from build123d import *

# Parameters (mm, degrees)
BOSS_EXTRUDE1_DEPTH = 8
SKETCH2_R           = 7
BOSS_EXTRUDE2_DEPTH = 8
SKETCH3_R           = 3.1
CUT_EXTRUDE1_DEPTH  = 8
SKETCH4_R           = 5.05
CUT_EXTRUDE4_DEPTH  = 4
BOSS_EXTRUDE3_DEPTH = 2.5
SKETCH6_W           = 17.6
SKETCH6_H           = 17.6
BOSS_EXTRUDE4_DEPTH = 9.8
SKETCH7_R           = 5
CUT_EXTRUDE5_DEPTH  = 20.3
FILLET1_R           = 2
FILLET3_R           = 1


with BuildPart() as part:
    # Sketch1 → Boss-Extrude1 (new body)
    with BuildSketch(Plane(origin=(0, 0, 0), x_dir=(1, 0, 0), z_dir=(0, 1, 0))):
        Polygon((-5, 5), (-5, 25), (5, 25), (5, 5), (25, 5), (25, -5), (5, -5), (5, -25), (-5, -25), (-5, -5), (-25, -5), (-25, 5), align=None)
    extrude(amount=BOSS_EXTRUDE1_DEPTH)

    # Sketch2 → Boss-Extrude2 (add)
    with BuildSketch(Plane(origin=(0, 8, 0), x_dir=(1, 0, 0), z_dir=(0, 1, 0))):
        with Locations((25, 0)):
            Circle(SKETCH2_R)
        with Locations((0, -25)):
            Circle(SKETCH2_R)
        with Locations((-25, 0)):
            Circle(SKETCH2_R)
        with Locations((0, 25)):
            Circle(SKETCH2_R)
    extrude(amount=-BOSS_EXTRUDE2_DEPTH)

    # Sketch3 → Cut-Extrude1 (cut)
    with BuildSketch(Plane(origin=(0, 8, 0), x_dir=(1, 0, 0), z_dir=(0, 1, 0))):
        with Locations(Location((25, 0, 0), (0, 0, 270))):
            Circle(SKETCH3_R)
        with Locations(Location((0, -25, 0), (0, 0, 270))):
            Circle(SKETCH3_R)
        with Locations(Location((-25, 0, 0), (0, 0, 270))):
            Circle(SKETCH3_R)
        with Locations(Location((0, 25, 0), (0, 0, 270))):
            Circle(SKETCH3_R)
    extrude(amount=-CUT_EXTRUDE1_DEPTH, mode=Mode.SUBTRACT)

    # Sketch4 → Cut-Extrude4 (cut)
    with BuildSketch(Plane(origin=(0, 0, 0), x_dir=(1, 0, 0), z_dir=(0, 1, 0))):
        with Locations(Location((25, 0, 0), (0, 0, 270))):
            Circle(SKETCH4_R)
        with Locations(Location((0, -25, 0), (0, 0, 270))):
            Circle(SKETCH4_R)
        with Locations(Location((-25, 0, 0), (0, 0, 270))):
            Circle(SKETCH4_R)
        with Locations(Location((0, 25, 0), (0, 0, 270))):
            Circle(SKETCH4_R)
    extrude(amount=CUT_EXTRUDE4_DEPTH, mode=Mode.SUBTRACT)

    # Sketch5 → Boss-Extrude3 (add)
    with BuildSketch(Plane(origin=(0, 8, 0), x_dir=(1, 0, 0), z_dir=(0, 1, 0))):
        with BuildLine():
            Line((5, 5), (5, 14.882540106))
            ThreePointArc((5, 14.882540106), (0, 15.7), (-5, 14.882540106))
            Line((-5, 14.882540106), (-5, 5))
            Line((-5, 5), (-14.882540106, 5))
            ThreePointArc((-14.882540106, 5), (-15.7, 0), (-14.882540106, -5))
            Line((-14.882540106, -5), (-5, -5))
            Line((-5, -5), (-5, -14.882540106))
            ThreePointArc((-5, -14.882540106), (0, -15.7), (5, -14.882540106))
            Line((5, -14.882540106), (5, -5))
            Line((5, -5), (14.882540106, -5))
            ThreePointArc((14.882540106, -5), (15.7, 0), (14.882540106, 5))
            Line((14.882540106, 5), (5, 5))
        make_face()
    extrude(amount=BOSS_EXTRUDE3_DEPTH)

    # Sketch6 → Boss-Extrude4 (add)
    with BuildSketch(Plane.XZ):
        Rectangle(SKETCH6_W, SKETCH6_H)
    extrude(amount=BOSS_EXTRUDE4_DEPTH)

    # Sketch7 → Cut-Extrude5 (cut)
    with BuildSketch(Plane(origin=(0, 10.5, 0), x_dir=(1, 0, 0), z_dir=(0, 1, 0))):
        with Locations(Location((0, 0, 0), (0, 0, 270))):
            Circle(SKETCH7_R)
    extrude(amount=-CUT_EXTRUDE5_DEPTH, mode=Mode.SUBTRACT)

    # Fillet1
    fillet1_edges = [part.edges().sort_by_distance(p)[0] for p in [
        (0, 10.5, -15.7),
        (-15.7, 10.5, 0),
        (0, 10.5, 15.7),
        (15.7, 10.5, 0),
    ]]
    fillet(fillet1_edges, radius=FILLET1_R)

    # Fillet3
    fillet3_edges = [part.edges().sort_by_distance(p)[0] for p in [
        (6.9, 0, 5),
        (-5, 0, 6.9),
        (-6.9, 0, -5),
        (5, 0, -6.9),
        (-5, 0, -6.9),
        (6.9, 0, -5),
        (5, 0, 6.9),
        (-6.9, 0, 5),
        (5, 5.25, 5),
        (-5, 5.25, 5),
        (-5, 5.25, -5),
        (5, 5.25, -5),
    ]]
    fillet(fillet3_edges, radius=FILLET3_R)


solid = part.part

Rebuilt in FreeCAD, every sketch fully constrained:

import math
import FreeCAD as App
import Part
import Sketcher

V = App.Vector
Q = App.Units.Quantity


def edges_at(feature, points):
    """Names of the edges that pass closest to the given points."""
    edges = feature.Shape.Edges
    near = lambda p: min(range(len(edges)), key=lambda i: edges[i].distToShape(Part.Vertex(*p))[0])
    return sorted({f"Edge{near(p) + 1}" for p in points})


def add_polygon(sketch, points):
    """Adds a closed chain of lines whose ends are joined by coincident constraints."""
    first, n = sketch.GeometryCount, len(points)
    for a, b in zip(points, points[1:] + points[:1]):
        sketch.addGeometry(Part.LineSegment(App.Vector(*a, 0), App.Vector(*b, 0)), False)
    for i in range(n):
        sketch.addConstraint(Sketcher.Constraint("Coincident", first + i, 2, first + (i + 1) % n, 1))

doc = App.newDocument("Part")
params = doc.addObject("Spreadsheet::Sheet", "Params")
for row, (alias, value) in enumerate([
    ("sketch1_width", "20 mm"),
    ("sketch1_width2", "10 mm"),
    ("pad1_length", "8 mm"),
    ("sketch2_diameter", "14 mm"),
    ("pad2_length", "8 mm"),
    ("sketch3_diameter", "6.2 mm"),
    ("pocket1_length", "8 mm"),
    ("sketch4_diameter", "10.1 mm"),
    ("pocket2_length", "4 mm"),
    ("sketch5_radius", "15.7 mm"),
    ("pad3_length", "2.5 mm"),
    ("sketch6_width", "17.6 mm"),
    ("pad4_length", "9.8 mm"),
    ("sketch7_diameter", "10 mm"),
    ("pocket3_length", "20.3 mm"),
    ("fillet_radius", "2 mm"),
    ("fillet2_radius", "1 mm"),
], start=1):
    params.set(f"A{row}", alias)
    params.set(f"B{row}", "=" + value)
    params.setAlias(f"B{row}", alias)

body = doc.addObject("PartDesign::Body", "Body")

sketch1 = body.newObject("Sketcher::SketchObject", "Sketch")
sketch1.AttachmentSupport = (doc.getObject("XZ_Plane"), [""])
sketch1.MapMode = "FlatFace"
add_polygon(sketch1, [(-5, -25), (-5, -5), (-25, -5), (-25, 5), (-5, 5), (-5, 25), (5, 25), (5, 5), (25, 5), (25, -5), (5, -5), (5, -25)])
sketch1.addConstraint(Sketcher.Constraint("Vertical", 0))
sketch1.addConstraint(Sketcher.Constraint("Horizontal", 1))
sketch1.addConstraint(Sketcher.Constraint("Vertical", 2))
sketch1.addConstraint(Sketcher.Constraint("Horizontal", 3))
sketch1.addConstraint(Sketcher.Constraint("Vertical", 4))
sketch1.addConstraint(Sketcher.Constraint("Horizontal", 5))
sketch1.addConstraint(Sketcher.Constraint("Vertical", 6))
sketch1.addConstraint(Sketcher.Constraint("Horizontal", 7))
sketch1.addConstraint(Sketcher.Constraint("Vertical", 8))
sketch1.addConstraint(Sketcher.Constraint("Horizontal", 9))
sketch1.addConstraint(Sketcher.Constraint("Vertical", 10))
sketch1.addConstraint(Sketcher.Constraint("Horizontal", 11))
sketch1.addConstraint(Sketcher.Constraint("Symmetric", 0, 2, 6, 2, -1, 1))
sketch1.addConstraint(Sketcher.Constraint("Symmetric", 2, 2, 8, 2, -1, 1))
sketch1.addConstraint(Sketcher.Constraint("Symmetric", 4, 2, 10, 2, -1, 1))
sketch1.addConstraint(Sketcher.Constraint("Symmetric", 3, 2, 6, 2, -2))
sketch1.addConstraint(Sketcher.Constraint("Equal", 9, 0))
sketch1.addConstraint(Sketcher.Constraint("Equal", 11, 2))
sketch1.addConstraint(Sketcher.Constraint("DistanceX", 1, 2, 1, 1, Q("20 mm")))
sketch1.addConstraint(Sketcher.Constraint("DistanceX", 5, 1, 5, 2, Q("10 mm")))
sketch1.setExpression("Constraints[30]", "Params.sketch1_width")
sketch1.setExpression("Constraints[31]", "Params.sketch1_width2")
pad1 = body.newObject("PartDesign::Pad", "Pad")
pad1.Profile = sketch1
pad1.setExpression("Length", "Params.pad1_length")
pad1.Reversed = True

sketch2 = body.newObject("Sketcher::SketchObject", "Sketch001")
sketch2.AttachmentSupport = (doc.getObject("XZ_Plane"), [""])
sketch2.MapMode = "FlatFace"
sketch2.AttachmentOffset = App.Placement(V(0, 0, -8), App.Rotation())
sketch2.addGeometry(Part.Circle(V(25, 0, 0), V(0, 0, 1), 7), False)
sketch2.addGeometry(Part.Circle(V(0, 25, 0), V(0, 0, 1), 7), False)
sketch2.addGeometry(Part.Circle(V(-25, 0, 0), V(0, 0, 1), 7), False)
sketch2.addGeometry(Part.Circle(V(0, -25, 0), V(0, 0, 1), 7), False)
sketch2.addConstraint(Sketcher.Constraint("Equal", 0, 1))
sketch2.addConstraint(Sketcher.Constraint("Equal", 1, 2))
sketch2.addConstraint(Sketcher.Constraint("Equal", 2, 3))
sketch2.addConstraint(Sketcher.Constraint("Symmetric", 0, 3, 2, 3, -1, 1))
sketch2.addConstraint(Sketcher.Constraint("Symmetric", 1, 3, 3, 3, -1, 1))
sketch2.addConstraint(Sketcher.Constraint("PointOnObject", 0, 3, -1))
sketch2.addConstraint(Sketcher.Constraint("PointOnObject", 1, 3, -2))
sketch2.addConstraint(Sketcher.Constraint("Diameter", 0, Q("14 mm")))
sketch2.addConstraint(Sketcher.Constraint("DistanceX", -1, 1, 0, 3, Q("25 mm")))
sketch2.addConstraint(Sketcher.Constraint("DistanceY", -1, 1, 1, 3, Q("25 mm")))
sketch2.setExpression("Constraints[7]", "Params.sketch2_diameter")
pad2 = body.newObject("PartDesign::Pad", "Pad001")
pad2.Profile = sketch2
pad2.setExpression("Length", "Params.pad2_length")

sketch3 = body.newObject("Sketcher::SketchObject", "Sketch002")
sketch3.AttachmentSupport = (doc.getObject("XZ_Plane"), [""])
sketch3.MapMode = "FlatFace"
sketch3.AttachmentOffset = App.Placement(V(0, 0, -8), App.Rotation())
sketch3.addGeometry(Part.Circle(V(25, 0, 0), V(0, 0, 1), 3.1), False)
sketch3.addGeometry(Part.Circle(V(0, 25, 0), V(0, 0, 1), 3.1), False)
sketch3.addGeometry(Part.Circle(V(-25, 0, 0), V(0, 0, 1), 3.1), False)
sketch3.addGeometry(Part.Circle(V(0, -25, 0), V(0, 0, 1), 3.1), False)
sketch3.addConstraint(Sketcher.Constraint("Equal", 0, 1))
sketch3.addConstraint(Sketcher.Constraint("Equal", 1, 2))
sketch3.addConstraint(Sketcher.Constraint("Equal", 2, 3))
sketch3.addConstraint(Sketcher.Constraint("Symmetric", 0, 3, 2, 3, -1, 1))
sketch3.addConstraint(Sketcher.Constraint("Symmetric", 1, 3, 3, 3, -1, 1))
sketch3.addConstraint(Sketcher.Constraint("PointOnObject", 0, 3, -1))
sketch3.addConstraint(Sketcher.Constraint("PointOnObject", 1, 3, -2))
sketch3.addConstraint(Sketcher.Constraint("Diameter", 0, Q("6.2 mm")))
sketch3.addConstraint(Sketcher.Constraint("DistanceX", -1, 1, 0, 3, Q("25 mm")))
sketch3.addConstraint(Sketcher.Constraint("DistanceY", -1, 1, 1, 3, Q("25 mm")))
sketch3.setExpression("Constraints[7]", "Params.sketch3_diameter")
pocket1 = body.newObject("PartDesign::Pocket", "Pocket")
pocket1.Profile = sketch3
pocket1.setExpression("Length", "Params.pocket1_length")
pocket1.Reversed = True

sketch4 = body.newObject("Sketcher::SketchObject", "Sketch003")
sketch4.AttachmentSupport = (doc.getObject("XZ_Plane"), [""])
sketch4.MapMode = "FlatFace"
sketch4.addGeometry(Part.Circle(V(25, 0, 0), V(0, 0, 1), 5.05), False)
sketch4.addGeometry(Part.Circle(V(0, 25, 0), V(0, 0, 1), 5.05), False)
sketch4.addGeometry(Part.Circle(V(-25, 0, 0), V(0, 0, 1), 5.05), False)
sketch4.addGeometry(Part.Circle(V(0, -25, 0), V(0, 0, 1), 5.05), False)
sketch4.addConstraint(Sketcher.Constraint("Equal", 0, 1))
sketch4.addConstraint(Sketcher.Constraint("Equal", 1, 2))
sketch4.addConstraint(Sketcher.Constraint("Equal", 2, 3))
sketch4.addConstraint(Sketcher.Constraint("Symmetric", 0, 3, 2, 3, -1, 1))
sketch4.addConstraint(Sketcher.Constraint("Symmetric", 1, 3, 3, 3, -1, 1))
sketch4.addConstraint(Sketcher.Constraint("PointOnObject", 0, 3, -1))
sketch4.addConstraint(Sketcher.Constraint("PointOnObject", 1, 3, -2))
sketch4.addConstraint(Sketcher.Constraint("Diameter", 0, Q("10.1 mm")))
sketch4.addConstraint(Sketcher.Constraint("DistanceX", -1, 1, 0, 3, Q("25 mm")))
sketch4.addConstraint(Sketcher.Constraint("DistanceY", -1, 1, 1, 3, Q("25 mm")))
sketch4.setExpression("Constraints[7]", "Params.sketch4_diameter")
pocket2 = body.newObject("PartDesign::Pocket", "Pocket001")
pocket2.Profile = sketch4
pocket2.setExpression("Length", "Params.pocket2_length")

sketch5 = body.newObject("Sketcher::SketchObject", "Sketch004")
sketch5.AttachmentSupport = (doc.getObject("XZ_Plane"), [""])
sketch5.MapMode = "FlatFace"
sketch5.AttachmentOffset = App.Placement(V(0, 0, -8), App.Rotation())
sketch5.addGeometry(Part.LineSegment(V(5, -5, 0), V(5, -14.88254, 0)), False)
sketch5.addGeometry(Part.ArcOfCircle(Part.Circle(V(0, 0, 0), V(0, 0, 1), 15.7), math.radians(-108.570503), math.radians(-71.429497)), False)
sketch5.addGeometry(Part.LineSegment(V(-5, -14.88254, 0), V(-5, -5, 0)), False)
sketch5.addGeometry(Part.LineSegment(V(-5, -5, 0), V(-14.88254, -5, 0)), False)
sketch5.addGeometry(Part.ArcOfCircle(Part.Circle(V(0, 0, 0), V(0, 0, 1), 15.7), math.radians(161.429497), math.radians(198.570503)), False)
sketch5.addGeometry(Part.LineSegment(V(-14.88254, 5, 0), V(-5, 5, 0)), False)
sketch5.addGeometry(Part.LineSegment(V(-5, 5, 0), V(-5, 14.88254, 0)), False)
sketch5.addGeometry(Part.ArcOfCircle(Part.Circle(V(0, 0, 0), V(0, 0, 1), 15.7), math.radians(71.429497), math.radians(108.570503)), False)
sketch5.addGeometry(Part.LineSegment(V(5, 14.88254, 0), V(5, 5, 0)), False)
sketch5.addGeometry(Part.LineSegment(V(5, 5, 0), V(14.88254, 5, 0)), False)
sketch5.addGeometry(Part.ArcOfCircle(Part.Circle(V(0, 0, 0), V(0, 0, 1), 15.7), math.radians(-18.570503), math.radians(18.570503)), False)
sketch5.addGeometry(Part.LineSegment(V(14.88254, -5, 0), V(5, -5, 0)), False)
sketch5.addConstraint(Sketcher.Constraint("Coincident", 0, 2, 1, 2))
sketch5.addConstraint(Sketcher.Constraint("Coincident", 1, 1, 2, 1))
sketch5.addConstraint(Sketcher.Constraint("Coincident", 2, 2, 3, 1))
sketch5.addConstraint(Sketcher.Constraint("Coincident", 3, 2, 4, 2))
sketch5.addConstraint(Sketcher.Constraint("Coincident", 4, 1, 5, 1))
sketch5.addConstraint(Sketcher.Constraint("Coincident", 5, 2, 6, 1))
sketch5.addConstraint(Sketcher.Constraint("Coincident", 6, 2, 7, 2))
sketch5.addConstraint(Sketcher.Constraint("Coincident", 7, 1, 8, 1))
sketch5.addConstraint(Sketcher.Constraint("Coincident", 8, 2, 9, 1))
sketch5.addConstraint(Sketcher.Constraint("Coincident", 9, 2, 10, 2))
sketch5.addConstraint(Sketcher.Constraint("Coincident", 10, 1, 11, 1))
sketch5.addConstraint(Sketcher.Constraint("Coincident", 11, 2, 0, 1))
sketch5.addConstraint(Sketcher.Constraint("Vertical", 0))
sketch5.addConstraint(Sketcher.Constraint("Vertical", 2))
sketch5.addConstraint(Sketcher.Constraint("Horizontal", 3))
sketch5.addConstraint(Sketcher.Constraint("Horizontal", 5))
sketch5.addConstraint(Sketcher.Constraint("Vertical", 6))
sketch5.addConstraint(Sketcher.Constraint("Vertical", 8))
sketch5.addConstraint(Sketcher.Constraint("Horizontal", 9))
sketch5.addConstraint(Sketcher.Constraint("Horizontal", 11))
sketch5.addConstraint(Sketcher.Constraint("Coincident", 1, 3, -1, 1))
sketch5.addConstraint(Sketcher.Constraint("Coincident", 4, 3, -1, 1))
sketch5.addConstraint(Sketcher.Constraint("Coincident", 7, 3, -1, 1))
sketch5.addConstraint(Sketcher.Constraint("Coincident", 10, 3, -1, 1))
sketch5.addConstraint(Sketcher.Constraint("Equal", 1, 4))
sketch5.addConstraint(Sketcher.Constraint("Equal", 4, 7))
sketch5.addConstraint(Sketcher.Constraint("Equal", 7, 10))
sketch5.addConstraint(Sketcher.Constraint("Symmetric", 2, 2, 8, 2, -1, 1))
sketch5.addConstraint(Sketcher.Constraint("Symmetric", 5, 2, 11, 2, -1, 1))
sketch5.addConstraint(Sketcher.Constraint("Symmetric", 5, 2, 8, 2, -2))
sketch5.addConstraint(Sketcher.Constraint("Equal", 11, 0))
sketch5.addConstraint(Sketcher.Constraint("Radius", 1, Q("15.7 mm")))
sketch5.addConstraint(Sketcher.Constraint("DistanceX", -1, 1, 0, 2, Q("5 mm")))
sketch5.setExpression("Constraints[31]", "Params.sketch5_radius")
pad3 = body.newObject("PartDesign::Pad", "Pad002")
pad3.Profile = sketch5
pad3.setExpression("Length", "Params.pad3_length")
pad3.Reversed = True

sketch6 = body.newObject("Sketcher::SketchObject", "Sketch005")
sketch6.AttachmentSupport = (doc.getObject("XZ_Plane"), [""])
sketch6.MapMode = "FlatFace"
add_polygon(sketch6, [(-8.8, 8.8), (-8.8, -8.8), (8.8, -8.8), (8.8, 8.8)])
sketch6.addConstraint(Sketcher.Constraint("Vertical", 0))
sketch6.addConstraint(Sketcher.Constraint("Horizontal", 1))
sketch6.addConstraint(Sketcher.Constraint("Vertical", 2))
sketch6.addConstraint(Sketcher.Constraint("Horizontal", 3))
sketch6.addConstraint(Sketcher.Constraint("Symmetric", 0, 2, 2, 2, -1, 1))
sketch6.addConstraint(Sketcher.Constraint("Equal", 3, 0))
sketch6.addConstraint(Sketcher.Constraint("DistanceX", 1, 1, 1, 2, Q("17.6 mm")))
sketch6.setExpression("Constraints[10]", "Params.sketch6_width")
pad4 = body.newObject("PartDesign::Pad", "Pad003")
pad4.Profile = sketch6
pad4.setExpression("Length", "Params.pad4_length")

sketch7 = body.newObject("Sketcher::SketchObject", "Sketch006")
sketch7.AttachmentSupport = (doc.getObject("XZ_Plane"), [""])
sketch7.MapMode = "FlatFace"
sketch7.AttachmentOffset = App.Placement(V(0, 0, -10.5), App.Rotation())
sketch7.addGeometry(Part.Circle(V(0, 0, 0), V(0, 0, 1), 5), False)
sketch7.addConstraint(Sketcher.Constraint("Coincident", 0, 3, -1, 1))
sketch7.addConstraint(Sketcher.Constraint("Diameter", 0, Q("10 mm")))
sketch7.setExpression("Constraints[1]", "Params.sketch7_diameter")
pocket3 = body.newObject("PartDesign::Pocket", "Pocket002")
pocket3.Profile = sketch7
pocket3.setExpression("Length", "Params.pocket3_length")
pocket3.Reversed = True
doc.recompute()

fillet = body.newObject("PartDesign::Fillet", "Fillet")
fillet.Base = (pocket3, edges_at(pocket3, [
    (0, 10.5, -15.7),
    (-15.7, 10.5, 0),
    (0, 10.5, 15.7),
    (15.7, 10.5, 0),
]))
fillet.setExpression("Radius", "Params.fillet_radius")
doc.recompute()

fillet2 = body.newObject("PartDesign::Fillet", "Fillet001")
fillet2.Base = (fillet, edges_at(fillet, [
    (6.9, 0, 5),
    (-5, 0, 6.9),
    (-6.9, 0, -5),
    (5, 0, -6.9),
    (-5, 0, -6.9),
    (6.9, 0, -5),
    (5, 0, 6.9),
    (-6.9, 0, 5),
    (5, 5.25, 5),
    (-5, 5.25, 5),
    (-5, 5.25, -5),
    (5, 5.25, -5),
]))
fillet2.setExpression("Radius", "Params.fillet2_radius")

doc.recompute()
